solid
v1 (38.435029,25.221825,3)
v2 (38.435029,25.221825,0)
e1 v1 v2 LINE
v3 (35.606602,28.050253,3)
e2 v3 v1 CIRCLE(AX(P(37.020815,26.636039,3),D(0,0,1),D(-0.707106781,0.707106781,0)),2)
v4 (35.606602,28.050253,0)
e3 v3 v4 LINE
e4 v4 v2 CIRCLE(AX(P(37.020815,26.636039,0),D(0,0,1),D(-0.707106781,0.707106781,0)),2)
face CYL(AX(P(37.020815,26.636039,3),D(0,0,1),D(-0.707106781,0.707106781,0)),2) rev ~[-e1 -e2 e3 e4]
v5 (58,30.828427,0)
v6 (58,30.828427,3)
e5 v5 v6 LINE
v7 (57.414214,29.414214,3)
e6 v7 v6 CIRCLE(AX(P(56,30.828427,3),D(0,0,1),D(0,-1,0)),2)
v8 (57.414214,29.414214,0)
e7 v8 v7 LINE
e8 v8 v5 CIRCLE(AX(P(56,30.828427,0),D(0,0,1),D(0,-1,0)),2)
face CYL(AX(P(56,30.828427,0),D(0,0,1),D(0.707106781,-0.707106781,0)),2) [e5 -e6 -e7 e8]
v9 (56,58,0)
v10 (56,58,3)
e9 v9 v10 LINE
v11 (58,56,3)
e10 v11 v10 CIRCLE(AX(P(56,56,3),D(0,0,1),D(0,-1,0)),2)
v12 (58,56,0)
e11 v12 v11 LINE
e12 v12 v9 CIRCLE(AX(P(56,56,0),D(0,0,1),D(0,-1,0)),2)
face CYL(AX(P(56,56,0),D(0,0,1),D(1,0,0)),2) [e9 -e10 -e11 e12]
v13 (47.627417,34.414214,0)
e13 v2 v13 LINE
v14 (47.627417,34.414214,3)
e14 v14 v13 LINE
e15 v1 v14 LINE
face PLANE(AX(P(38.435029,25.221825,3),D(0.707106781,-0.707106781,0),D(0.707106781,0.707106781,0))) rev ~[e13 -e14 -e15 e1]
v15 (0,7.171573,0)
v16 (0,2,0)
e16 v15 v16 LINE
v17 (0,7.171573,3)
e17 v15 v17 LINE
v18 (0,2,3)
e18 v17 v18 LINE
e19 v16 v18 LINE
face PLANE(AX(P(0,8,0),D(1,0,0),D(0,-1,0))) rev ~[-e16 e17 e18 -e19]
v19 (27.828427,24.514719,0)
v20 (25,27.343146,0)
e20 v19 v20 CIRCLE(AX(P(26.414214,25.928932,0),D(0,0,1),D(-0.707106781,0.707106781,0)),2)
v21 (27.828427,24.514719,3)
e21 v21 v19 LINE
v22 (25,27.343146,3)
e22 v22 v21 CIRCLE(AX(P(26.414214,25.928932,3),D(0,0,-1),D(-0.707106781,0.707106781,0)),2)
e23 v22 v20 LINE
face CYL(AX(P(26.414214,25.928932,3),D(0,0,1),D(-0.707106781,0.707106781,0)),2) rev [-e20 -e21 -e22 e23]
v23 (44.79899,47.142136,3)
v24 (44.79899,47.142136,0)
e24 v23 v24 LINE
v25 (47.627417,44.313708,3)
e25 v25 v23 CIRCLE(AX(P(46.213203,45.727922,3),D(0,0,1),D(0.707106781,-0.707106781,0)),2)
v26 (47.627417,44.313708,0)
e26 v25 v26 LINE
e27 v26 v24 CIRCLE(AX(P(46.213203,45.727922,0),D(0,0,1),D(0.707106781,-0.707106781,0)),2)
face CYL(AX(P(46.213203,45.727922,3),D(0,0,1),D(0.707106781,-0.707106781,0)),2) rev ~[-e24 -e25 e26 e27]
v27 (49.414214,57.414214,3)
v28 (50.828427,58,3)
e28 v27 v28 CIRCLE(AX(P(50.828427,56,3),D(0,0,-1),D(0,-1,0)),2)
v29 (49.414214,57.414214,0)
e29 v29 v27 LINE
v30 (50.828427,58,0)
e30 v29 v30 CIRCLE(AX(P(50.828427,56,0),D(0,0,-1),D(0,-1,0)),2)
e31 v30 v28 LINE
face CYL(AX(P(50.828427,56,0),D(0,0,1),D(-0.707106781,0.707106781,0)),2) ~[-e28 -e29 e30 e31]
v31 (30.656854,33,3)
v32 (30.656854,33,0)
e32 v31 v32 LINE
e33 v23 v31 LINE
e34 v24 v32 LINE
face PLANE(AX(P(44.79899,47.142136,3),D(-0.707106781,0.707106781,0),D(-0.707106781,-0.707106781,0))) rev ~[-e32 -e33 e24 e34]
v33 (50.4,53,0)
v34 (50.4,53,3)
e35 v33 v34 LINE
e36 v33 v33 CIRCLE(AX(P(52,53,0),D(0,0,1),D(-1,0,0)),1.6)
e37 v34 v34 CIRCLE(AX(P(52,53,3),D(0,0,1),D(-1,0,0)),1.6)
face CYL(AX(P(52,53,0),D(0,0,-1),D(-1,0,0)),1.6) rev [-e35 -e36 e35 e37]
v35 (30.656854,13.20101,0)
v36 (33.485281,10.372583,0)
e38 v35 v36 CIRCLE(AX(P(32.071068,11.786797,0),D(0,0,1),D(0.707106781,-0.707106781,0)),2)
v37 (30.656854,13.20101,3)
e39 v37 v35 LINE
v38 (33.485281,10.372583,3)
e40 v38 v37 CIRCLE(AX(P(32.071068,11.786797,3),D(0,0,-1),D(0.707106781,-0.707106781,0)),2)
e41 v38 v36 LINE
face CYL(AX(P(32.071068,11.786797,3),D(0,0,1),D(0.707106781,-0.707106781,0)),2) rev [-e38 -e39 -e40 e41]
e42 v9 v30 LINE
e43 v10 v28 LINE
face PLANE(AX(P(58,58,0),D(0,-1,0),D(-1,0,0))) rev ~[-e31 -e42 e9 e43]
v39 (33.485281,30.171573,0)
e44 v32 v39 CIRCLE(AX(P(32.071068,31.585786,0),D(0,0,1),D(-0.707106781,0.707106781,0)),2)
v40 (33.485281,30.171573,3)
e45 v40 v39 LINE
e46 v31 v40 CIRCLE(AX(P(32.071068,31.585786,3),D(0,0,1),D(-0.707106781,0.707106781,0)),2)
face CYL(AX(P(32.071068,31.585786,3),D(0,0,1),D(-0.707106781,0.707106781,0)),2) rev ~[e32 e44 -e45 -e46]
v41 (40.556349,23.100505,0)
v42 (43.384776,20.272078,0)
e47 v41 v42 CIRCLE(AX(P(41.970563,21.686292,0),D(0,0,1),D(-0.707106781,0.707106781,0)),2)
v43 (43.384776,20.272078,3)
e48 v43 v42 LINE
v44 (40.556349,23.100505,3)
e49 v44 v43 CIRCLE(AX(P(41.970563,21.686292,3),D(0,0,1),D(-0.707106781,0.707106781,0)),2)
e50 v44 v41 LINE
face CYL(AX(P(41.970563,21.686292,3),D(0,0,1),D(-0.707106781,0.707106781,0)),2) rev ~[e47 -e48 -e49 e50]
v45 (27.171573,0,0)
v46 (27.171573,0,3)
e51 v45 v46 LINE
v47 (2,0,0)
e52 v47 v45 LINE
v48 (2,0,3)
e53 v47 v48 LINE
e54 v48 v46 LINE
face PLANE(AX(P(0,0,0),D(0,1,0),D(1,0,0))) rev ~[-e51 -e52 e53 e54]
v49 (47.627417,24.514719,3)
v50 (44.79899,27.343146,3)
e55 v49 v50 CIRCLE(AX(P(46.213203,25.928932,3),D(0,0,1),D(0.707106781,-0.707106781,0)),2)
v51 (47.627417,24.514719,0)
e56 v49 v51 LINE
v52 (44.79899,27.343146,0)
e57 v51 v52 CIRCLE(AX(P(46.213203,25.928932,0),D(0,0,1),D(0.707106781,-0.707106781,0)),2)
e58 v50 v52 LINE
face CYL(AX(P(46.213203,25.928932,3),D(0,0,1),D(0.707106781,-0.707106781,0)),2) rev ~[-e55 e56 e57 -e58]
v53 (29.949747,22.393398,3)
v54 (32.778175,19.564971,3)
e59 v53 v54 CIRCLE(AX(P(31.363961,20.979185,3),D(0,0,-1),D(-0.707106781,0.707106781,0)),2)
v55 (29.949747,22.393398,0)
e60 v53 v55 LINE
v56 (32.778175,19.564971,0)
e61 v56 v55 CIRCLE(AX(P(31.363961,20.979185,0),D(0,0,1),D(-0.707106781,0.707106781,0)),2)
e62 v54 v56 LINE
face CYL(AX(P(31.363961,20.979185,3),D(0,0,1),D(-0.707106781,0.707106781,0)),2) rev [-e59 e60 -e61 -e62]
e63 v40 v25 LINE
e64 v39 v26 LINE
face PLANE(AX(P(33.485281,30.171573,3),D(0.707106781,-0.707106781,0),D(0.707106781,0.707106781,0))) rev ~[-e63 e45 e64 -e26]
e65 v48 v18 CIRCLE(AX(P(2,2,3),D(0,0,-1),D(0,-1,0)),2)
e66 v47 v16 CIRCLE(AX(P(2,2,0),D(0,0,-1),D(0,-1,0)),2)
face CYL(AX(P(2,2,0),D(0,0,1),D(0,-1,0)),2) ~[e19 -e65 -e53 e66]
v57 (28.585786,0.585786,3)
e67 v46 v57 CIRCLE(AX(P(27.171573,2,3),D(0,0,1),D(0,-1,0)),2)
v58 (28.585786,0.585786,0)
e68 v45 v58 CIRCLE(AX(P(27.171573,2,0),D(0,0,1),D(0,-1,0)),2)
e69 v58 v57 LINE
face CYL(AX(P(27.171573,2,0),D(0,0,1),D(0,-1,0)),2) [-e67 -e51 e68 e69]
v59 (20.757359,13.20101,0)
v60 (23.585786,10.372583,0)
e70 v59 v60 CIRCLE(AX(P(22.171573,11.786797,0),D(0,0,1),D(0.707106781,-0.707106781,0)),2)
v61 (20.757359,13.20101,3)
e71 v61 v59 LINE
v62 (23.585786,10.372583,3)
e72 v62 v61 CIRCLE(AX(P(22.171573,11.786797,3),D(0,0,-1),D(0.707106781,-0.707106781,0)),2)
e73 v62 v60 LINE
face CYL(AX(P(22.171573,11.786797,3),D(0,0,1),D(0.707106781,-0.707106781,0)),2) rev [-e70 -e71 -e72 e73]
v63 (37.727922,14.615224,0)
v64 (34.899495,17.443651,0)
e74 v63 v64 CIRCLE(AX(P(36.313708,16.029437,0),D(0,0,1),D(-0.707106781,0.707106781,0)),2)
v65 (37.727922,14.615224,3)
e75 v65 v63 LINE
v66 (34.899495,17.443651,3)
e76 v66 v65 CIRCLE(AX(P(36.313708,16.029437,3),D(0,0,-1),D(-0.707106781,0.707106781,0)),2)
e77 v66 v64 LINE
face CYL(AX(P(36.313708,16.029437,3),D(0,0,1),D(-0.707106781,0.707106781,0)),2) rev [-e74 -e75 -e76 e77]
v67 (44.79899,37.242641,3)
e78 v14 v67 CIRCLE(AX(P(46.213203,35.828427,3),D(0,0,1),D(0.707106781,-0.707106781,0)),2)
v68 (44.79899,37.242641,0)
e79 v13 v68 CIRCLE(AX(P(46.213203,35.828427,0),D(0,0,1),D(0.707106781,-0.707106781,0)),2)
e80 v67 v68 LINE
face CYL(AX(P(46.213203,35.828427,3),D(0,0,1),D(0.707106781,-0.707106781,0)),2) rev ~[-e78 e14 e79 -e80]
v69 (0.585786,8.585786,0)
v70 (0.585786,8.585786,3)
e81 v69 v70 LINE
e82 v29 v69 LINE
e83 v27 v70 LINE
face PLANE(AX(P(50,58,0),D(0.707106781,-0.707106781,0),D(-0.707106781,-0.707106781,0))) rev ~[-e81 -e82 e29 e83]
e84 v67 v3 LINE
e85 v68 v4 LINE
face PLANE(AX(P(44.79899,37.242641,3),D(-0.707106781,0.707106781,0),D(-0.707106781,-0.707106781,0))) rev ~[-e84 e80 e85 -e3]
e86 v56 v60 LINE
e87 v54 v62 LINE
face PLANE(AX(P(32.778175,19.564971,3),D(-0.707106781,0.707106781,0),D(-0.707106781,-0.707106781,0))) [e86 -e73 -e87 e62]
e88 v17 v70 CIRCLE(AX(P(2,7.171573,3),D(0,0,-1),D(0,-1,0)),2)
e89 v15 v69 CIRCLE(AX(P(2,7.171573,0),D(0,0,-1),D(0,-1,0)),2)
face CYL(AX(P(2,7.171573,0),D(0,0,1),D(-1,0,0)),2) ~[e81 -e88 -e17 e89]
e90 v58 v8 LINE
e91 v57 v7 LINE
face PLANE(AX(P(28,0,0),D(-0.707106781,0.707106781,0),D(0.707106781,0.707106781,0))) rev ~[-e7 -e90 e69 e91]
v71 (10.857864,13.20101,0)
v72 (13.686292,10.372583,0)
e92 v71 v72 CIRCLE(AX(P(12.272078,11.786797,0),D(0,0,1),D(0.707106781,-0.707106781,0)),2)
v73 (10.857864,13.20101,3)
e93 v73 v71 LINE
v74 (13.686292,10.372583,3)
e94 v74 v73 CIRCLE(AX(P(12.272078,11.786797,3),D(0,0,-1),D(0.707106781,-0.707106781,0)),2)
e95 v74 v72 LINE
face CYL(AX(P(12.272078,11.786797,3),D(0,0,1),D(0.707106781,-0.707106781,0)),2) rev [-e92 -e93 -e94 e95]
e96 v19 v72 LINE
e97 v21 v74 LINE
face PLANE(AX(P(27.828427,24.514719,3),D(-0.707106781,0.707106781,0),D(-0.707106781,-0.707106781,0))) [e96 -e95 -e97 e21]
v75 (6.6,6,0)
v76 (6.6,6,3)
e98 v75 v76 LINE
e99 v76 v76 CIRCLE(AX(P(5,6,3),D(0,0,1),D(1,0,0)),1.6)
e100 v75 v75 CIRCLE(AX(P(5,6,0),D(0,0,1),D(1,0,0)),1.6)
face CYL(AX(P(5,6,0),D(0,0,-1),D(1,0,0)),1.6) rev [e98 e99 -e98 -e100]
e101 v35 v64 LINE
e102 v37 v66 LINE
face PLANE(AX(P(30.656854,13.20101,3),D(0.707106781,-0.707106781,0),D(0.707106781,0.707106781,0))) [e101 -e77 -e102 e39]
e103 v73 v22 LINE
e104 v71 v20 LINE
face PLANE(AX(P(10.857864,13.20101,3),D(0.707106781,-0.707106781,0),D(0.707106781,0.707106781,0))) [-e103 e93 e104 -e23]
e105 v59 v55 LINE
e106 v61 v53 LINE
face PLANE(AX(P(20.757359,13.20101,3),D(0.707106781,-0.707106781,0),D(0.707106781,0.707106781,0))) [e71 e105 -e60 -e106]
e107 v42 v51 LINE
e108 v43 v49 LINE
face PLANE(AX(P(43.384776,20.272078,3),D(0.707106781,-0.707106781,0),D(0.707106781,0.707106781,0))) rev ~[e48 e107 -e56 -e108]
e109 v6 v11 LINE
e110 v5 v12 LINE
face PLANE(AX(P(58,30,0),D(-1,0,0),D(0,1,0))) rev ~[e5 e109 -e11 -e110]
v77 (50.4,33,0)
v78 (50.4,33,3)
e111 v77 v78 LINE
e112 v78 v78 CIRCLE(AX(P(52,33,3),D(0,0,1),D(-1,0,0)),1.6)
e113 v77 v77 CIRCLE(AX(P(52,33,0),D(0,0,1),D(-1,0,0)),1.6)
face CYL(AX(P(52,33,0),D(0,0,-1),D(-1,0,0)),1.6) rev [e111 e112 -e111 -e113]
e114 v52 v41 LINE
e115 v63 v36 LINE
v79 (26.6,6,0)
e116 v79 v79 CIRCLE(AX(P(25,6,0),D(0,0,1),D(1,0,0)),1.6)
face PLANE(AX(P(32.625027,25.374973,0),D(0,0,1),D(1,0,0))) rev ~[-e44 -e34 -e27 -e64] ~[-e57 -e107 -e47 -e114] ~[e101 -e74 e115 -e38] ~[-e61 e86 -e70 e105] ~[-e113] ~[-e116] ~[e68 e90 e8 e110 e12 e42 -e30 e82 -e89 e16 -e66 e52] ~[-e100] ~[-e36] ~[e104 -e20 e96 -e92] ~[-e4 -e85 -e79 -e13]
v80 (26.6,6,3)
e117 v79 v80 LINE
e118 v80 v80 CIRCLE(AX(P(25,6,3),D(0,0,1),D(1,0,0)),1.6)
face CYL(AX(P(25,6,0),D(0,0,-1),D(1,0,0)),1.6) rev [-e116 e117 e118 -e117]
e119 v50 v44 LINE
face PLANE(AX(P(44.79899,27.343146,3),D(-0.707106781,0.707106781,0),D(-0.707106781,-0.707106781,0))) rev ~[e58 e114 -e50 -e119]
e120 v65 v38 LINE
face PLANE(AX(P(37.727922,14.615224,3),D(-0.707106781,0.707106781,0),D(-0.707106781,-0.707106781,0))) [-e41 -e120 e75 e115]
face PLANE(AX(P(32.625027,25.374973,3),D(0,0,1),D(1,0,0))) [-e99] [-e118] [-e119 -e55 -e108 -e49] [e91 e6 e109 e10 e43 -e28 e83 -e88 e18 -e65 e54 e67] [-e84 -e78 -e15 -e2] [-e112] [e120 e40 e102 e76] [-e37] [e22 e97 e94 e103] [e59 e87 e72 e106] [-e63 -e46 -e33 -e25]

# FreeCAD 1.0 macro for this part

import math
import FreeCAD as App
import Part
import Sketcher
Q = App.Units.Quantity


def edges_at(feature, points):
    """Names of the edges that pass closest to the given points."""
    edges = feature.Shape.Edges
    near = lambda p: min(range(len(edges)), key=lambda i: edges[i].distToShape(Part.Vertex(*p))[0])
    return sorted({f"Edge{near(p) + 1}" for p in points})


def add_polygon(sketch, points):
    """Adds a closed chain of lines whose ends are joined by coincident constraints."""
    first, n = sketch.GeometryCount, len(points)
    for a, b in zip(points, points[1:] + points[:1]):
        sketch.addGeometry(Part.LineSegment(App.Vector(*a, 0), App.Vector(*b, 0)), False)
    for i in range(n):
        sketch.addConstraint(Sketcher.Constraint("Coincident", first + i, 2, first + (i + 1) % n, 1))

doc = App.newDocument("Part")
body = doc.addObject("PartDesign::Body", "Body")

# Sketch on XY plane
sketch1 = body.newObject("Sketcher::SketchObject", "Sketch")
sketch1.AttachmentSupport = (doc.getObject("XY_Plane"), [""])
sketch1.MapMode = "FlatFace"
add_polygon(sketch1, [(0, 0), (28, 0), (58, 30), (58, 58), (50, 58), (0, 8)])  # lines 0-5
sketch1.addGeometry(Part.Circle(App.Vector(5, 6, 0), App.Vector(0, 0, 1), 1.6), False)  # 6
sketch1.addGeometry(Part.Circle(App.Vector(25, 6, 0), App.Vector(0, 0, 1), 1.6), False)  # 7
sketch1.addGeometry(Part.Circle(App.Vector(52, 33, 0), App.Vector(0, 0, 1), 1.6), False)  # 8
sketch1.addGeometry(Part.Circle(App.Vector(52, 53, 0), App.Vector(0, 0, 1), 1.6), False)  # 9
sketch1.addConstraint(Sketcher.Constraint("Horizontal", 0))
sketch1.addConstraint(Sketcher.Constraint("Vertical", 2))
sketch1.addConstraint(Sketcher.Constraint("Horizontal", 3))
sketch1.addConstraint(Sketcher.Constraint("Vertical", 5))
sketch1.addConstraint(Sketcher.Constraint("Coincident", 5, 2, -1, 1))
sketch1.addConstraint(Sketcher.Constraint("Equal", 6, 7))
sketch1.addConstraint(Sketcher.Constraint("Equal", 7, 8))
sketch1.addConstraint(Sketcher.Constraint("Equal", 8, 9))
sketch1.addConstraint(Sketcher.Constraint("Parallel", 1, 4))
sketch1.addConstraint(Sketcher.Constraint("Horizontal", 6, 3, 7, 3))
sketch1.addConstraint(Sketcher.Constraint("Vertical", 8, 3, 9, 3))
sketch1.addConstraint(Sketcher.Constraint("Equal", 0, 2))
sketch1.addConstraint(Sketcher.Constraint("Equal", 3, 5))
sketch1.addConstraint(Sketcher.Constraint("Diameter", 6, Q("3.2 mm")))
sketch1.addConstraint(Sketcher.Constraint("DistanceX", 0, 1, 0, 2, Q("28 mm")))
sketch1.addConstraint(Sketcher.Constraint("DistanceX", 3, 2, 3, 1, Q("8 mm")))
sketch1.addConstraint(Sketcher.Constraint("DistanceX", -1, 1, 6, 3, Q("5 mm")))
sketch1.addConstraint(Sketcher.Constraint("DistanceY", -1, 1, 6, 3, Q("6 mm")))
sketch1.addConstraint(Sketcher.Constraint("DistanceX", -1, 1, 7, 3, Q("25 mm")))
sketch1.addConstraint(Sketcher.Constraint("DistanceX", -1, 1, 8, 3, Q("52 mm")))
sketch1.addConstraint(Sketcher.Constraint("DistanceY", -1, 1, 8, 3, Q("33 mm")))
sketch1.addConstraint(Sketcher.Constraint("DistanceY", -1, 1, 9, 3, Q("53 mm")))
sketch1.addConstraint(Sketcher.Constraint("DistanceX", -1, 1, 1, 2, Q("58 mm")))
pad1 = body.newObject("PartDesign::Pad", "Pad")
pad1.Profile = sketch1
pad1.Length = 3
doc.recompute()

fillet = body.newObject("PartDesign::Fillet", "Fillet")
fillet.Base = (pad1, edges_at(pad1, [
    (0, 8, 1.5),
    (50, 58, 1.5),
    (58, 58, 1.5),
    (58, 30, 1.5),
    (28, 0, 1.5),
    (0, 0, 1.5),
]))
fillet.Radius = 2

# Sketch on XY plane
sketch2 = body.newObject("Sketcher::SketchObject", "Sketch001")
sketch2.AttachmentSupport = (doc.getObject("XY_Plane"), [""])
sketch2.MapMode = "FlatFace"
sketch2.AttachmentOffset = App.Placement(App.Vector(0, 0, 3), App.Rotation())
sketch2.addGeometry(Part.LineSegment(App.Vector(25, 27.343146, 0), App.Vector(10.857864, 13.20101, 0)), False)
sketch2.addGeometry(Part.ArcOfCircle(Part.Circle(App.Vector(12.272078, 11.786797, 0), App.Vector(0, 0, 1), 2), math.radians(135), math.radians(315)), False)
sketch2.addGeometry(Part.LineSegment(App.Vector(13.686292, 10.372583, 0), App.Vector(27.828427, 24.514719, 0)), False)
sketch2.addGeometry(Part.ArcOfCircle(Part.Circle(App.Vector(26.414214, 25.928932, 0), App.Vector(0, 0, 1), 2), math.radians(-45), math.radians(135)), False)
sketch2.addGeometry(Part.LineSegment(App.Vector(23.585786, 10.372583, 0), App.Vector(32.778175, 19.564971, 0)), False)
sketch2.addGeometry(Part.ArcOfCircle(Part.Circle(App.Vector(31.363961, 20.979185, 0), App.Vector(0, 0, 1), 2), math.radians(-45), math.radians(135)), False)
sketch2.addGeometry(Part.LineSegment(App.Vector(29.949747, 22.393398, 0), App.Vector(20.757359, 13.20101, 0)), False)
sketch2.addGeometry(Part.ArcOfCircle(Part.Circle(App.Vector(22.171573, 11.786797, 0), App.Vector(0, 0, 1), 2), math.radians(135), math.radians(315)), False)
sketch2.addGeometry(Part.LineSegment(App.Vector(34.899495, 17.443651, 0), App.Vector(30.656854, 13.20101, 0)), False)
sketch2.addGeometry(Part.ArcOfCircle(Part.Circle(App.Vector(32.071068, 11.786797, 0), App.Vector(0, 0, 1), 2), math.radians(135), math.radians(315)), False)
sketch2.addGeometry(Part.LineSegment(App.Vector(33.485281, 10.372583, 0), App.Vector(37.727922, 14.615224, 0)), False)
sketch2.addGeometry(Part.ArcOfCircle(Part.Circle(App.Vector(36.313708, 16.029437, 0), App.Vector(0, 0, 1), 2), math.radians(-45), math.radians(135)), False)
sketch2.addGeometry(Part.LineSegment(App.Vector(44.79899, 47.142136, 0), App.Vector(30.656854, 33, 0)), False)
sketch2.addGeometry(Part.ArcOfCircle(Part.Circle(App.Vector(32.071068, 31.585786, 0), App.Vector(0, 0, 1), 2), math.radians(135), math.radians(315)), False)
sketch2.addGeometry(Part.LineSegment(App.Vector(33.485281, 30.171573, 0), App.Vector(47.627417, 44.313708, 0)), False)
sketch2.addGeometry(Part.ArcOfCircle(Part.Circle(App.Vector(46.213203, 45.727922, 0), App.Vector(0, 0, 1), 2), math.radians(-45), math.radians(135)), False)
sketch2.addGeometry(Part.LineSegment(App.Vector(38.435029, 25.221825, 0), App.Vector(47.627417, 34.414214, 0)), False)
sketch2.addGeometry(Part.ArcOfCircle(Part.Circle(App.Vector(46.213203, 35.828427, 0), App.Vector(0, 0, 1), 2), math.radians(-45), math.radians(135)), False)
sketch2.addGeometry(Part.LineSegment(App.Vector(44.79899, 37.242641, 0), App.Vector(35.606602, 28.050253, 0)), False)
sketch2.addGeometry(Part.ArcOfCircle(Part.Circle(App.Vector(37.020815, 26.636039, 0), App.Vector(0, 0, 1), 2), math.radians(135), math.radians(315)), False)
sketch2.addGeometry(Part.LineSegment(App.Vector(44.79899, 27.343146, 0), App.Vector(40.556349, 23.100505, 0)), False)
sketch2.addGeometry(Part.ArcOfCircle(Part.Circle(App.Vector(41.970563, 21.686292, 0), App.Vector(0, 0, 1), 2), math.radians(135), math.radians(315)), False)
sketch2.addGeometry(Part.LineSegment(App.Vector(43.384776, 20.272078, 0), App.Vector(47.627417, 24.514719, 0)), False)
sketch2.addGeometry(Part.ArcOfCircle(Part.Circle(App.Vector(46.213203, 25.928932, 0), App.Vector(0, 0, 1), 2), math.radians(-45), math.radians(135)), False)
sketch2.addConstraint(Sketcher.Constraint("Tangent", 0, 2, 1, 1))
sketch2.addConstraint(Sketcher.Constraint("Tangent", 1, 2, 2, 1))
sketch2.addConstraint(Sketcher.Constraint("Tangent", 2, 2, 3, 1))
sketch2.addConstraint(Sketcher.Constraint("Tangent", 3, 2, 0, 1))
sketch2.addConstraint(Sketcher.Constraint("Tangent", 4, 2, 5, 1))
sketch2.addConstraint(Sketcher.Constraint("Tangent", 5, 2, 6, 1))
sketch2.addConstraint(Sketcher.Constraint("Tangent", 6, 2, 7, 1))
sketch2.addConstraint(Sketcher.Constraint("Tangent", 7, 2, 4, 1))
sketch2.addConstraint(Sketcher.Constraint("Tangent", 8, 2, 9, 1))
sketch2.addConstraint(Sketcher.Constraint("Tangent", 9, 2, 10, 1))
sketch2.addConstraint(Sketcher.Constraint("Tangent", 10, 2, 11, 1))
sketch2.addConstraint(Sketcher.Constraint("Tangent", 11, 2, 8, 1))
sketch2.addConstraint(Sketcher.Constraint("Tangent", 12, 2, 13, 1))
sketch2.addConstraint(Sketcher.Constraint("Tangent", 13, 2, 14, 1))
sketch2.addConstraint(Sketcher.Constraint("Tangent", 14, 2, 15, 1))
sketch2.addConstraint(Sketcher.Constraint("Tangent", 15, 2, 12, 1))
sketch2.addConstraint(Sketcher.Constraint("Tangent", 16, 2, 17, 1))
sketch2.addConstraint(Sketcher.Constraint("Tangent", 17, 2, 18, 1))
sketch2.addConstraint(Sketcher.Constraint("Tangent", 18, 2, 19, 1))
sketch2.addConstraint(Sketcher.Constraint("Tangent", 19, 2, 16, 1))
sketch2.addConstraint(Sketcher.Constraint("Tangent", 20, 2, 21, 1))
sketch2.addConstraint(Sketcher.Constraint("Tangent", 21, 2, 22, 1))
sketch2.addConstraint(Sketcher.Constraint("Tangent", 22, 2, 23, 1))
sketch2.addConstraint(Sketcher.Constraint("Tangent", 23, 2, 20, 1))
sketch2.addConstraint(Sketcher.Constraint("Equal", 1, 3))
sketch2.addConstraint(Sketcher.Constraint("Equal", 3, 5))
sketch2.addConstraint(Sketcher.Constraint("Equal", 5, 7))
sketch2.addConstraint(Sketcher.Constraint("Equal", 7, 9))
sketch2.addConstraint(Sketcher.Constraint("Equal", 9, 11))
sketch2.addConstraint(Sketcher.Constraint("Equal", 11, 13))
sketch2.addConstraint(Sketcher.Constraint("Equal", 13, 15))
sketch2.addConstraint(Sketcher.Constraint("Equal", 15, 17))
sketch2.addConstraint(Sketcher.Constraint("Equal", 17, 19))
sketch2.addConstraint(Sketcher.Constraint("Equal", 19, 21))
sketch2.addConstraint(Sketcher.Constraint("Equal", 21, 23))
sketch2.addConstraint(Sketcher.Constraint("Parallel", 2, 4))
sketch2.addConstraint(Sketcher.Constraint("Parallel", 6, 8))
sketch2.addConstraint(Sketcher.Constraint("Parallel", 10, 12))
sketch2.addConstraint(Sketcher.Constraint("Parallel", 14, 16))
sketch2.addConstraint(Sketcher.Constraint("Parallel", 18, 20))
sketch2.addConstraint(Sketcher.Constraint("Horizontal", 1, 3, 7, 3))
sketch2.addConstraint(Sketcher.Constraint("Horizontal", 7, 3, 9, 3))
sketch2.addConstraint(Sketcher.Constraint("Horizontal", 3, 3, 23, 3))
sketch2.addConstraint(Sketcher.Constraint("Vertical", 9, 3, 13, 3))
sketch2.addConstraint(Sketcher.Constraint("Vertical", 15, 3, 17, 3))
sketch2.addConstraint(Sketcher.Constraint("Vertical", 17, 3, 23, 3))
sketch2.addConstraint(Sketcher.Constraint("Equal", 2, 12))
sketch2.addConstraint(Sketcher.Constraint("Equal", 6, 16))
sketch2.addConstraint(Sketcher.Constraint("Equal", 10, 20))
sketch2.addConstraint(Sketcher.Constraint("Radius", 1, Q("2 mm")))
sketch2.addConstraint(Sketcher.Constraint("Angle", 0, Q("-135 deg")))
sketch2.addConstraint(Sketcher.Constraint("Distance", 0, Q("20 mm")))
sketch2.addConstraint(Sketcher.Constraint("Distance", 4, Q("13 mm")))
sketch2.addConstraint(Sketcher.Constraint("Distance", 8, Q("6 mm")))
sketch2.addConstraint(Sketcher.Constraint("DistanceX", -1, 1, 3, 2, Q("25 mm")))
sketch2.addConstraint(Sketcher.Constraint("DistanceY", -1, 1, 12, 2, Q("33 mm")))
sketch2.addConstraint(Sketcher.Constraint("DistanceY", -1, 1, 5, 2, Q("22.393398 mm")))
sketch2.addConstraint(Sketcher.Constraint("DistanceX", -1, 1, 18, 2, Q("35.606602 mm")))
sketch2.addConstraint(Sketcher.Constraint("DistanceY", 11, 3, 19, 3, Q("10.606602 mm")))
sketch2.addConstraint(Sketcher.Constraint("DistanceX", 5, 3, 21, 3, Q("10.606602 mm")))
pocket1 = body.newObject("PartDesign::Pocket", "Pocket")
pocket1.Profile = sketch2
pocket1.Length = 10

doc.recompute()
